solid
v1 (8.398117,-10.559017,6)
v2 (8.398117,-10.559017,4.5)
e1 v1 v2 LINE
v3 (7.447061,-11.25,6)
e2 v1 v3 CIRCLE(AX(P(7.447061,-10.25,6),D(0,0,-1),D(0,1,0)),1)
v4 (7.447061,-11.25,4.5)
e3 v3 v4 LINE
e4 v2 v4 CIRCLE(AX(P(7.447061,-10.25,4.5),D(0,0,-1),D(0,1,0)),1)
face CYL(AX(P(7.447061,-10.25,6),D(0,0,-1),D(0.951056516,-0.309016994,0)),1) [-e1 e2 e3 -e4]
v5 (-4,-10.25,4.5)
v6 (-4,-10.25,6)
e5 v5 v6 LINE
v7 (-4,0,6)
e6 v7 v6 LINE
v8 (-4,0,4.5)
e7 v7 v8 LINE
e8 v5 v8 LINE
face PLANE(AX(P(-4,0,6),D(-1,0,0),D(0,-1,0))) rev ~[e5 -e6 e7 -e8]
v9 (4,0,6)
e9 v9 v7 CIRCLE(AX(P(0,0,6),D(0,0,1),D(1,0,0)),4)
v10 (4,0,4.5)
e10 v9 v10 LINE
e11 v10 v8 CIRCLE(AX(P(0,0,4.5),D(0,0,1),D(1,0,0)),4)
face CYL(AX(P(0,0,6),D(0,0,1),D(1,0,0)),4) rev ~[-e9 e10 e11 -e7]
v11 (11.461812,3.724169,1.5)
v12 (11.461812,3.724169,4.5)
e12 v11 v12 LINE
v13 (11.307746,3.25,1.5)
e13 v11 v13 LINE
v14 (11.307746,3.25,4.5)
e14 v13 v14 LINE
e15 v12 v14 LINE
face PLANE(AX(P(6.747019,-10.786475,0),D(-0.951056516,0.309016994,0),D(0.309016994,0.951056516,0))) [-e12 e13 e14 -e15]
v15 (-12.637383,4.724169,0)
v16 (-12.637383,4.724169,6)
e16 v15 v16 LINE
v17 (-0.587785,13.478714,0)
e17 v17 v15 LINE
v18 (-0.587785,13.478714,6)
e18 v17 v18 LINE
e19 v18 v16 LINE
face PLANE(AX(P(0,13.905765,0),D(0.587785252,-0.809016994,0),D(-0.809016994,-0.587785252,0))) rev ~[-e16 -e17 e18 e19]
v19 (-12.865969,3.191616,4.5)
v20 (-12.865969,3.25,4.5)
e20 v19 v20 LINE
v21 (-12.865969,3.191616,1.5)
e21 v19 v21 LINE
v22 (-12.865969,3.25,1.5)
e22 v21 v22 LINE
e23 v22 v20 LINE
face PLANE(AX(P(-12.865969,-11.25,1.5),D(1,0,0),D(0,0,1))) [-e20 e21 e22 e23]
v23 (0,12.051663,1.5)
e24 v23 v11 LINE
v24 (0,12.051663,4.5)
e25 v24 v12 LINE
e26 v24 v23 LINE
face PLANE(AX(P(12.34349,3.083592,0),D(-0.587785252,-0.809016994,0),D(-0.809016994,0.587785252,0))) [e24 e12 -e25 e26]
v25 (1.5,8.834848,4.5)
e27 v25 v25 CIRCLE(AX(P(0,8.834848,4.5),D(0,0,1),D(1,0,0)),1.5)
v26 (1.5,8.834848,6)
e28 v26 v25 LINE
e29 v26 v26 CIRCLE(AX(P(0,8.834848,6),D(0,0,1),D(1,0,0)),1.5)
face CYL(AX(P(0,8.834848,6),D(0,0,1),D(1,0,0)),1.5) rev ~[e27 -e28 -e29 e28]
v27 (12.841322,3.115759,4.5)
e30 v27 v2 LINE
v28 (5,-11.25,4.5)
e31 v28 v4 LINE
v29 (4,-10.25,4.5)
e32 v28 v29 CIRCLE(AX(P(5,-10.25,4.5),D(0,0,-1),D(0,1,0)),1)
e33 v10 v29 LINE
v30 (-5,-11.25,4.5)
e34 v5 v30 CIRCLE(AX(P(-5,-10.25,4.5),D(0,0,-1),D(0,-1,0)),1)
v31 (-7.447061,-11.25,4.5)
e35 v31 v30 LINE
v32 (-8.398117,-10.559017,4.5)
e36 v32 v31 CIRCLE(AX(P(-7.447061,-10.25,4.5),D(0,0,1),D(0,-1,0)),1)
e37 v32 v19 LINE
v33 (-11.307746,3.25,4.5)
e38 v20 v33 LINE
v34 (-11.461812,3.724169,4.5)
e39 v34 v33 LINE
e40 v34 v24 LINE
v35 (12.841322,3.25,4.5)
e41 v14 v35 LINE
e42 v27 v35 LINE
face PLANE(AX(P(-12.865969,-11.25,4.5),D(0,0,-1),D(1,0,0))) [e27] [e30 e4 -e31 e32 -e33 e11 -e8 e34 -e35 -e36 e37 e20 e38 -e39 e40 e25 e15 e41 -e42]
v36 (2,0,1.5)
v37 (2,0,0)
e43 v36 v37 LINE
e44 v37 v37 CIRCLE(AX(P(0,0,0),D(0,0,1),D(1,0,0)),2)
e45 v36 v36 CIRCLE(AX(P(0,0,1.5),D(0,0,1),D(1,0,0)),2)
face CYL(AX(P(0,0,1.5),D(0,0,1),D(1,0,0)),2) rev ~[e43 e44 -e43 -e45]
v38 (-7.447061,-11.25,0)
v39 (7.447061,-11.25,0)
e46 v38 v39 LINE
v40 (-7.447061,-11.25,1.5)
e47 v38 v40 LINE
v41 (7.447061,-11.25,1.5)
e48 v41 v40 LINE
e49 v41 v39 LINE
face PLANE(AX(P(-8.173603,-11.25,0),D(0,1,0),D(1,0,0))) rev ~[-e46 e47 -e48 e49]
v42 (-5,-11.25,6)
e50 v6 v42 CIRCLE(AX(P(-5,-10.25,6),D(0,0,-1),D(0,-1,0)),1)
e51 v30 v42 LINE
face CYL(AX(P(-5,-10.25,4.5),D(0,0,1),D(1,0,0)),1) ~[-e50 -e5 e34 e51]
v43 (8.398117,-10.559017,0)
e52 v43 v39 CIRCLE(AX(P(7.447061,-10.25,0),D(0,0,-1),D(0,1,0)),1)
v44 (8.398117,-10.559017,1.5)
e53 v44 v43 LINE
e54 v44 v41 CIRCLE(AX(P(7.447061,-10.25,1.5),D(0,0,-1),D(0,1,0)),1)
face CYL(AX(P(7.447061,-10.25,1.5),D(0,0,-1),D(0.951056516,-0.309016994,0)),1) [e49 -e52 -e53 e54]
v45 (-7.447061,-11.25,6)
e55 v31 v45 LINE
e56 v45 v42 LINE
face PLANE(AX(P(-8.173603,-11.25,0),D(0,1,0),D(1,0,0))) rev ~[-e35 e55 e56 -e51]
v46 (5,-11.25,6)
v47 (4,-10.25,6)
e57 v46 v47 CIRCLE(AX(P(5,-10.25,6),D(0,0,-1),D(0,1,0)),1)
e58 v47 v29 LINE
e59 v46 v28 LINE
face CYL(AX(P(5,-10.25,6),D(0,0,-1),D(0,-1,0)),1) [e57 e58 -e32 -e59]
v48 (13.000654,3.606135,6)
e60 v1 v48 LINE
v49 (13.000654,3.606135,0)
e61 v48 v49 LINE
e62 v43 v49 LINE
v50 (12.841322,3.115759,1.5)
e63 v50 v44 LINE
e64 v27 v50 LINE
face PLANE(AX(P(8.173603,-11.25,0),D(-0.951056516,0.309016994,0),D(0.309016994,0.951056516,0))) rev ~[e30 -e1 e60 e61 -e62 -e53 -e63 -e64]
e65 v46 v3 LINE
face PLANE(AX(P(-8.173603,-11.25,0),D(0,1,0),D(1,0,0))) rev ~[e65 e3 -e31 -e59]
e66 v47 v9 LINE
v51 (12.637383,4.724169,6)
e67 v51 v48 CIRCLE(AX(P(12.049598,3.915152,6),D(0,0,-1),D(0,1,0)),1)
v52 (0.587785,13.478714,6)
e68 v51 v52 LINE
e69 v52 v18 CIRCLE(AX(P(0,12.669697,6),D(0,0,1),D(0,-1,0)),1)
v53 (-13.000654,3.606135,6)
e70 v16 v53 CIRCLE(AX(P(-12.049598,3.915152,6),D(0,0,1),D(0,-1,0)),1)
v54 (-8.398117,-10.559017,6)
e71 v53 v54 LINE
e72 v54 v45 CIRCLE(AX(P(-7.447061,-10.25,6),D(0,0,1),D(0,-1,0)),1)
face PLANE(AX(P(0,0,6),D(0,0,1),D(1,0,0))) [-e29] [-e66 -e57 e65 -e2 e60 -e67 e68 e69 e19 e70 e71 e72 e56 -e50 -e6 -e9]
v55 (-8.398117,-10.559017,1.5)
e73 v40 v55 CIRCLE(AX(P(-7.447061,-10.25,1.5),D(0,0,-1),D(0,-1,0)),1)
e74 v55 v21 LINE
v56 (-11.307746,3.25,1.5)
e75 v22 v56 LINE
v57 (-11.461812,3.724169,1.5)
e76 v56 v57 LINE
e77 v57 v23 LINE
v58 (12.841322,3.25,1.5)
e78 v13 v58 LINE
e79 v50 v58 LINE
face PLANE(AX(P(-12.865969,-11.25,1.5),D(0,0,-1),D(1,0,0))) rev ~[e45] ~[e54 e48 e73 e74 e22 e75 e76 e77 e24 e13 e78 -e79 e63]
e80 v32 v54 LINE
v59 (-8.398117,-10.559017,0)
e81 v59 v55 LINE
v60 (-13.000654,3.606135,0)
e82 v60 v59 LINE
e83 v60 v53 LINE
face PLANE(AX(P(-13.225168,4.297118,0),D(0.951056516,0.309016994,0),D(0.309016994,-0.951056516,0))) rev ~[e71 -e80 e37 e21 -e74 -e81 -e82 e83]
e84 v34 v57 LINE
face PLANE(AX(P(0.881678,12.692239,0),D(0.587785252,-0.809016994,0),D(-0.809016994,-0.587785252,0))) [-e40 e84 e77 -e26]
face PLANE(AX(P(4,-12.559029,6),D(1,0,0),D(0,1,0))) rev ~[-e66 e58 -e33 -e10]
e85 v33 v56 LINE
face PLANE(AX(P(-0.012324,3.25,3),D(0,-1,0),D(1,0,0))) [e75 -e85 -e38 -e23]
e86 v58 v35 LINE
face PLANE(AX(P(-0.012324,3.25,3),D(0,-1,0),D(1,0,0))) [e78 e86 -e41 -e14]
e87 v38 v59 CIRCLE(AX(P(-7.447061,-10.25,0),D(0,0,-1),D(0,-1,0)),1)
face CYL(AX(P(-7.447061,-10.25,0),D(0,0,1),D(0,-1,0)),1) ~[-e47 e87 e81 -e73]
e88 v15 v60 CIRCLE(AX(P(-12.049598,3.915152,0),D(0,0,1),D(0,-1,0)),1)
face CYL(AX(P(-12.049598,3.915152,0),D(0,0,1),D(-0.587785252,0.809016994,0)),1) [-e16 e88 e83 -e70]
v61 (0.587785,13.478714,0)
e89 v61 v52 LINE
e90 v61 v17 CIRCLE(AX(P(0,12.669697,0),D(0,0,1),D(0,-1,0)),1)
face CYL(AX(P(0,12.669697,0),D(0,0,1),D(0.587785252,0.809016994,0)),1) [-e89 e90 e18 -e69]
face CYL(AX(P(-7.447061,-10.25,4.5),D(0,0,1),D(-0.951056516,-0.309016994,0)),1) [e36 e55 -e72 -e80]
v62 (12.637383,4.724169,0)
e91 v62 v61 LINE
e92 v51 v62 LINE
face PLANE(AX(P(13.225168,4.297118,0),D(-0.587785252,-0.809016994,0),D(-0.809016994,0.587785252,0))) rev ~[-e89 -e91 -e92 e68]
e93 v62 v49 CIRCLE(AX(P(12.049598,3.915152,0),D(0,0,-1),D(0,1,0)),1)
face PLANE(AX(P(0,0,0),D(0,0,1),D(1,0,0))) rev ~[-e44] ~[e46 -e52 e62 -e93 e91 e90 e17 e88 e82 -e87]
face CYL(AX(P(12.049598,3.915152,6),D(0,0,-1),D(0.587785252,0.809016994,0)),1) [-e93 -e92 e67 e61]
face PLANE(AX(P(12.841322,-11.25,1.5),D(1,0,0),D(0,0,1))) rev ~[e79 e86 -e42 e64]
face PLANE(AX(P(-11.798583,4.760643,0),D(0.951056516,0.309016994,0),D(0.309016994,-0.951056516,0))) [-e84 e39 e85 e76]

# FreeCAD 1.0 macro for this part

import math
import FreeCAD as App
import Part
import Sketcher

V = App.Vector
Q = App.Units.Quantity


def edges_at(feature, points):
    """Names of the edges that pass closest to the given points."""
    edges = feature.Shape.Edges
    near = lambda p: min(range(len(edges)), key=lambda i: edges[i].distToShape(Part.Vertex(*p))[0])
    return sorted({f"Edge{near(p) + 1}" for p in points})


def faces_at(feature, points):
    """Names of the faces that lie closest to the given points."""
    faces = feature.Shape.Faces
    near = lambda p: min(range(len(faces)), key=lambda i: faces[i].distToShape(Part.Vertex(*p))[0])
    return sorted({f"Face{near(p) + 1}" for p in points})

doc = App.newDocument("Part")
body = doc.addObject("PartDesign::Body", "Body")

sketch1 = body.newObject("Sketcher::SketchObject", "Sketch")
sketch1.AttachmentSupport = (doc.getObject("XY_Plane"), [""])
sketch1.MapMode = "FlatFace"
sketch1.addGeometry([
    Part.LineSegment(V(8.173603, -11.25, 0), V(13.225168, 4.297118, 0)),
    Part.LineSegment(V(13.225168, 4.297118, 0), V(0, 13.905765, 0)),
    Part.LineSegment(V(0, 13.905765, 0), V(-13.225168, 4.297118, 0)),
    Part.LineSegment(V(-13.225168, 4.297118, 0), V(-8.173603, -11.25, 0)),
    Part.LineSegment(V(-8.173603, -11.25, 0), V(8.173603, -11.25, 0)),
], False)
sketch1.addConstraint([
    Sketcher.Constraint("Coincident", 0, 2, 1, 1),
    Sketcher.Constraint("Coincident", 1, 2, 2, 1),
    Sketcher.Constraint("Coincident", 2, 2, 3, 1),
    Sketcher.Constraint("Coincident", 3, 2, 4, 1),
    Sketcher.Constraint("Coincident", 4, 2, 0, 1),
    Sketcher.Constraint("Horizontal", 4),
    Sketcher.Constraint("Symmetric", 0, 2, 2, 2, -2),
    Sketcher.Constraint("PointOnObject", 1, 2, -2),
    Sketcher.Constraint("Equal", 0, 1),
    Sketcher.Constraint("Equal", 2, 3),
    Sketcher.Constraint("Angle", 0, Q("72 deg")),
    Sketcher.Constraint("Angle", 1, Q("144 deg")),
    Sketcher.Constraint("DistanceY", 3, 2, -1, 1, Q("11.25 mm")),
    Sketcher.Constraint("DistanceX", 4, 1, 4, 2, Q("16.347207 mm")),
])
pad1 = body.newObject("PartDesign::Pad", "Pad")
pad1.Profile = sketch1
pad1.Length = 6
doc.recompute()

thickness = body.newObject("PartDesign::Thickness", "Thickness")
thickness.Base = (pad1, faces_at(pad1, [(10.699, -3.476, 3)]))
thickness.Value = 1.5
thickness.Reversed = True
thickness.Join = "Arc"

sketch2 = body.newObject("Sketcher::SketchObject", "Sketch001")
sketch2.AttachmentSupport = (doc.getObject("XY_Plane"), [""])
sketch2.MapMode = "FlatFace"
sketch2.addGeometry([
    Part.LineSegment(V(8.173603, -11.25, 0), V(13.225168, 4.297118, 0)),
    Part.LineSegment(V(13.225168, 4.297118, 0), V(0, 13.905765, 0)),
    Part.LineSegment(V(0, 13.905765, 0), V(-13.225168, 4.297118, 0)),
    Part.LineSegment(V(-13.225168, 4.297118, 0), V(-8.173603, -11.25, 0)),
    Part.LineSegment(V(-8.173603, -11.25, 0), V(8.173603, -11.25, 0)),
], False)
sketch2.addConstraint([
    Sketcher.Constraint("Coincident", 0, 2, 1, 1),
    Sketcher.Constraint("Coincident", 1, 2, 2, 1),
    Sketcher.Constraint("Coincident", 2, 2, 3, 1),
    Sketcher.Constraint("Coincident", 3, 2, 4, 1),
    Sketcher.Constraint("Coincident", 4, 2, 0, 1),
    Sketcher.Constraint("Horizontal", 4),
    Sketcher.Constraint("Symmetric", 0, 2, 2, 2, -2),
    Sketcher.Constraint("PointOnObject", 1, 2, -2),
    Sketcher.Constraint("Equal", 0, 1),
    Sketcher.Constraint("Equal", 2, 3),
    Sketcher.Constraint("Angle", 0, Q("72 deg")),
    Sketcher.Constraint("Angle", 1, Q("144 deg")),
    Sketcher.Constraint("DistanceY", 3, 2, -1, 1, Q("11.25 mm")),
    Sketcher.Constraint("DistanceX", 4, 1, 4, 2, Q("16.347207 mm")),
])
pad2 = body.newObject("PartDesign::Pad", "Pad001")
pad2.Profile = sketch2
pad2.Length = 5
doc.recompute()

thickness2 = body.newObject("PartDesign::Thickness", "Thickness001")
thickness2.Base = (pad2, faces_at(pad2, [(0, -11.25, 3)]))
thickness2.Value = 1.5
thickness2.Reversed = True
thickness2.Join = "Arc"

sketch3 = body.newObject("Sketcher::SketchObject", "Sketch002")
sketch3.AttachmentSupport = (doc.getObject("XZ_Plane"), [""])
sketch3.MapMode = "FlatFace"
sketch3.AttachmentOffset = App.Placement(V(0, 0, 11.25), App.Rotation())
sketch3.addGeometry([
    Part.LineSegment(V(-12.865969, 4.5, 0), V(-12.865969, 1.5, 0)),
    Part.LineSegment(V(-12.865969, 1.5, 0), V(12.841322, 1.5, 0)),
    Part.LineSegment(V(12.841322, 1.5, 0), V(12.841322, 4.5, 0)),
    Part.LineSegment(V(12.841322, 4.5, 0), V(-12.865969, 4.5, 0)),
], False)
sketch3.addConstraint([
    Sketcher.Constraint("Coincident", 0, 2, 1, 1),
    Sketcher.Constraint("Coincident", 1, 2, 2, 1),
    Sketcher.Constraint("Coincident", 2, 2, 3, 1),
    Sketcher.Constraint("Coincident", 3, 2, 0, 1),
    Sketcher.Constraint("Vertical", 0),
    Sketcher.Constraint("Horizontal", 1),
    Sketcher.Constraint("Vertical", 2),
    Sketcher.Constraint("Horizontal", 3),
    Sketcher.Constraint("DistanceY", 0, 2, 0, 1, Q("3 mm")),
    Sketcher.Constraint("DistanceY", -1, 1, 0, 2, Q("1.5 mm")),
    Sketcher.Constraint("DistanceX", 1, 1, 1, 2, Q("25.707291 mm")),
    Sketcher.Constraint("DistanceX", 0, 2, -1, 1, Q("12.865969 mm")),
])
pocket1 = body.newObject("PartDesign::Pocket", "Pocket")
pocket1.Profile = sketch3
pocket1.Length = 14.5

sketch4 = body.newObject("Sketcher::SketchObject", "Sketch003")
sketch4.AttachmentSupport = (doc.getObject("XY_Plane"), [""])
sketch4.MapMode = "FlatFace"
sketch4.AttachmentOffset = App.Placement(V(0, 0, 6), App.Rotation())
sketch4.addGeometry([
    Part.LineSegment(V(4, -12.559029, 0), V(4, 0, 0)),
    Part.ArcOfCircle(Part.Circle(V(0, 0, 0), V(0, 0, 1), 4), math.radians(0), math.radians(180)),
    Part.LineSegment(V(-4, 0, 0), V(-4, -12.559029, 0)),
    Part.LineSegment(V(-4, -12.559029, 0), V(4, -12.559029, 0)),
], False)
sketch4.addConstraint([
    Sketcher.Constraint("Tangent", 0, 2, 1, 1),
    Sketcher.Constraint("Tangent", 1, 2, 2, 1),
    Sketcher.Constraint("Coincident", 2, 2, 3, 1),
    Sketcher.Constraint("Coincident", 3, 2, 0, 1),
    Sketcher.Constraint("Vertical", 0),
    Sketcher.Constraint("Vertical", 2),
    Sketcher.Constraint("Horizontal", 3),
    Sketcher.Constraint("Coincident", 1, 3, -1, 1),
    Sketcher.Constraint("Radius", 1, Q("4 mm")),
    Sketcher.Constraint("DistanceY", 0, 1, 0, 2, Q("12.559029 mm")),
])
pocket2 = body.newObject("PartDesign::Pocket", "Pocket001")
pocket2.Profile = sketch4
pocket2.Length = 2

sketch5 = body.newObject("Sketcher::SketchObject", "Sketch004")
sketch5.AttachmentSupport = (doc.getObject("XY_Plane"), [""])
sketch5.MapMode = "FlatFace"
sketch5.AttachmentOffset = App.Placement(V(0, 0, 1.5), App.Rotation())
sketch5.addGeometry(Part.Circle(V(0, 0, 0), V(0, 0, 1), 2), False)
sketch5.addConstraint([
    Sketcher.Constraint("Coincident", 0, 3, -1, 1),
    Sketcher.Constraint("Diameter", 0, Q("4 mm")),
])
pocket3 = body.newObject("PartDesign::Pocket", "Pocket002")
pocket3.Profile = sketch5
pocket3.Length = 25
doc.recompute()

fillet = body.newObject("PartDesign::Fillet", "Fillet")
fillet.Base = (pocket3, edges_at(pocket3, [
    (8.174, -11.25, 5.25),
    (13.225, 4.297, 3),
    (8.174, -11.25, 0.75),
    (-8.174, -11.25, 0.75),
    (-8.174, -11.25, 5.25),
    (-4, -11.25, 5.25),
    (4, -11.25, 5.25),
    (0, 13.906, 3),
    (-13.225, 4.297, 3),
]))
fillet.Radius = 1

sketch6 = body.newObject("Sketcher::SketchObject", "Sketch005")
sketch6.AttachmentSupport = (doc.getObject("XY_Plane"), [""])
sketch6.MapMode = "FlatFace"
sketch6.AttachmentOffset = App.Placement(V(0, 0, 6), App.Rotation())
sketch6.addGeometry(Part.Circle(V(0, 8.834848, 0), V(0, 0, 1), 1.5), False)
sketch6.addConstraint([
    Sketcher.Constraint("PointOnObject", 0, 3, -2),
    Sketcher.Constraint("Diameter", 0, Q("3 mm")),
    Sketcher.Constraint("DistanceY", -1, 1, 0, 3, Q("8.834848 mm")),
])
pocket4 = body.newObject("PartDesign::Pocket", "Pocket003")
pocket4.Profile = sketch6
pocket4.Length = 2

doc.recompute()
